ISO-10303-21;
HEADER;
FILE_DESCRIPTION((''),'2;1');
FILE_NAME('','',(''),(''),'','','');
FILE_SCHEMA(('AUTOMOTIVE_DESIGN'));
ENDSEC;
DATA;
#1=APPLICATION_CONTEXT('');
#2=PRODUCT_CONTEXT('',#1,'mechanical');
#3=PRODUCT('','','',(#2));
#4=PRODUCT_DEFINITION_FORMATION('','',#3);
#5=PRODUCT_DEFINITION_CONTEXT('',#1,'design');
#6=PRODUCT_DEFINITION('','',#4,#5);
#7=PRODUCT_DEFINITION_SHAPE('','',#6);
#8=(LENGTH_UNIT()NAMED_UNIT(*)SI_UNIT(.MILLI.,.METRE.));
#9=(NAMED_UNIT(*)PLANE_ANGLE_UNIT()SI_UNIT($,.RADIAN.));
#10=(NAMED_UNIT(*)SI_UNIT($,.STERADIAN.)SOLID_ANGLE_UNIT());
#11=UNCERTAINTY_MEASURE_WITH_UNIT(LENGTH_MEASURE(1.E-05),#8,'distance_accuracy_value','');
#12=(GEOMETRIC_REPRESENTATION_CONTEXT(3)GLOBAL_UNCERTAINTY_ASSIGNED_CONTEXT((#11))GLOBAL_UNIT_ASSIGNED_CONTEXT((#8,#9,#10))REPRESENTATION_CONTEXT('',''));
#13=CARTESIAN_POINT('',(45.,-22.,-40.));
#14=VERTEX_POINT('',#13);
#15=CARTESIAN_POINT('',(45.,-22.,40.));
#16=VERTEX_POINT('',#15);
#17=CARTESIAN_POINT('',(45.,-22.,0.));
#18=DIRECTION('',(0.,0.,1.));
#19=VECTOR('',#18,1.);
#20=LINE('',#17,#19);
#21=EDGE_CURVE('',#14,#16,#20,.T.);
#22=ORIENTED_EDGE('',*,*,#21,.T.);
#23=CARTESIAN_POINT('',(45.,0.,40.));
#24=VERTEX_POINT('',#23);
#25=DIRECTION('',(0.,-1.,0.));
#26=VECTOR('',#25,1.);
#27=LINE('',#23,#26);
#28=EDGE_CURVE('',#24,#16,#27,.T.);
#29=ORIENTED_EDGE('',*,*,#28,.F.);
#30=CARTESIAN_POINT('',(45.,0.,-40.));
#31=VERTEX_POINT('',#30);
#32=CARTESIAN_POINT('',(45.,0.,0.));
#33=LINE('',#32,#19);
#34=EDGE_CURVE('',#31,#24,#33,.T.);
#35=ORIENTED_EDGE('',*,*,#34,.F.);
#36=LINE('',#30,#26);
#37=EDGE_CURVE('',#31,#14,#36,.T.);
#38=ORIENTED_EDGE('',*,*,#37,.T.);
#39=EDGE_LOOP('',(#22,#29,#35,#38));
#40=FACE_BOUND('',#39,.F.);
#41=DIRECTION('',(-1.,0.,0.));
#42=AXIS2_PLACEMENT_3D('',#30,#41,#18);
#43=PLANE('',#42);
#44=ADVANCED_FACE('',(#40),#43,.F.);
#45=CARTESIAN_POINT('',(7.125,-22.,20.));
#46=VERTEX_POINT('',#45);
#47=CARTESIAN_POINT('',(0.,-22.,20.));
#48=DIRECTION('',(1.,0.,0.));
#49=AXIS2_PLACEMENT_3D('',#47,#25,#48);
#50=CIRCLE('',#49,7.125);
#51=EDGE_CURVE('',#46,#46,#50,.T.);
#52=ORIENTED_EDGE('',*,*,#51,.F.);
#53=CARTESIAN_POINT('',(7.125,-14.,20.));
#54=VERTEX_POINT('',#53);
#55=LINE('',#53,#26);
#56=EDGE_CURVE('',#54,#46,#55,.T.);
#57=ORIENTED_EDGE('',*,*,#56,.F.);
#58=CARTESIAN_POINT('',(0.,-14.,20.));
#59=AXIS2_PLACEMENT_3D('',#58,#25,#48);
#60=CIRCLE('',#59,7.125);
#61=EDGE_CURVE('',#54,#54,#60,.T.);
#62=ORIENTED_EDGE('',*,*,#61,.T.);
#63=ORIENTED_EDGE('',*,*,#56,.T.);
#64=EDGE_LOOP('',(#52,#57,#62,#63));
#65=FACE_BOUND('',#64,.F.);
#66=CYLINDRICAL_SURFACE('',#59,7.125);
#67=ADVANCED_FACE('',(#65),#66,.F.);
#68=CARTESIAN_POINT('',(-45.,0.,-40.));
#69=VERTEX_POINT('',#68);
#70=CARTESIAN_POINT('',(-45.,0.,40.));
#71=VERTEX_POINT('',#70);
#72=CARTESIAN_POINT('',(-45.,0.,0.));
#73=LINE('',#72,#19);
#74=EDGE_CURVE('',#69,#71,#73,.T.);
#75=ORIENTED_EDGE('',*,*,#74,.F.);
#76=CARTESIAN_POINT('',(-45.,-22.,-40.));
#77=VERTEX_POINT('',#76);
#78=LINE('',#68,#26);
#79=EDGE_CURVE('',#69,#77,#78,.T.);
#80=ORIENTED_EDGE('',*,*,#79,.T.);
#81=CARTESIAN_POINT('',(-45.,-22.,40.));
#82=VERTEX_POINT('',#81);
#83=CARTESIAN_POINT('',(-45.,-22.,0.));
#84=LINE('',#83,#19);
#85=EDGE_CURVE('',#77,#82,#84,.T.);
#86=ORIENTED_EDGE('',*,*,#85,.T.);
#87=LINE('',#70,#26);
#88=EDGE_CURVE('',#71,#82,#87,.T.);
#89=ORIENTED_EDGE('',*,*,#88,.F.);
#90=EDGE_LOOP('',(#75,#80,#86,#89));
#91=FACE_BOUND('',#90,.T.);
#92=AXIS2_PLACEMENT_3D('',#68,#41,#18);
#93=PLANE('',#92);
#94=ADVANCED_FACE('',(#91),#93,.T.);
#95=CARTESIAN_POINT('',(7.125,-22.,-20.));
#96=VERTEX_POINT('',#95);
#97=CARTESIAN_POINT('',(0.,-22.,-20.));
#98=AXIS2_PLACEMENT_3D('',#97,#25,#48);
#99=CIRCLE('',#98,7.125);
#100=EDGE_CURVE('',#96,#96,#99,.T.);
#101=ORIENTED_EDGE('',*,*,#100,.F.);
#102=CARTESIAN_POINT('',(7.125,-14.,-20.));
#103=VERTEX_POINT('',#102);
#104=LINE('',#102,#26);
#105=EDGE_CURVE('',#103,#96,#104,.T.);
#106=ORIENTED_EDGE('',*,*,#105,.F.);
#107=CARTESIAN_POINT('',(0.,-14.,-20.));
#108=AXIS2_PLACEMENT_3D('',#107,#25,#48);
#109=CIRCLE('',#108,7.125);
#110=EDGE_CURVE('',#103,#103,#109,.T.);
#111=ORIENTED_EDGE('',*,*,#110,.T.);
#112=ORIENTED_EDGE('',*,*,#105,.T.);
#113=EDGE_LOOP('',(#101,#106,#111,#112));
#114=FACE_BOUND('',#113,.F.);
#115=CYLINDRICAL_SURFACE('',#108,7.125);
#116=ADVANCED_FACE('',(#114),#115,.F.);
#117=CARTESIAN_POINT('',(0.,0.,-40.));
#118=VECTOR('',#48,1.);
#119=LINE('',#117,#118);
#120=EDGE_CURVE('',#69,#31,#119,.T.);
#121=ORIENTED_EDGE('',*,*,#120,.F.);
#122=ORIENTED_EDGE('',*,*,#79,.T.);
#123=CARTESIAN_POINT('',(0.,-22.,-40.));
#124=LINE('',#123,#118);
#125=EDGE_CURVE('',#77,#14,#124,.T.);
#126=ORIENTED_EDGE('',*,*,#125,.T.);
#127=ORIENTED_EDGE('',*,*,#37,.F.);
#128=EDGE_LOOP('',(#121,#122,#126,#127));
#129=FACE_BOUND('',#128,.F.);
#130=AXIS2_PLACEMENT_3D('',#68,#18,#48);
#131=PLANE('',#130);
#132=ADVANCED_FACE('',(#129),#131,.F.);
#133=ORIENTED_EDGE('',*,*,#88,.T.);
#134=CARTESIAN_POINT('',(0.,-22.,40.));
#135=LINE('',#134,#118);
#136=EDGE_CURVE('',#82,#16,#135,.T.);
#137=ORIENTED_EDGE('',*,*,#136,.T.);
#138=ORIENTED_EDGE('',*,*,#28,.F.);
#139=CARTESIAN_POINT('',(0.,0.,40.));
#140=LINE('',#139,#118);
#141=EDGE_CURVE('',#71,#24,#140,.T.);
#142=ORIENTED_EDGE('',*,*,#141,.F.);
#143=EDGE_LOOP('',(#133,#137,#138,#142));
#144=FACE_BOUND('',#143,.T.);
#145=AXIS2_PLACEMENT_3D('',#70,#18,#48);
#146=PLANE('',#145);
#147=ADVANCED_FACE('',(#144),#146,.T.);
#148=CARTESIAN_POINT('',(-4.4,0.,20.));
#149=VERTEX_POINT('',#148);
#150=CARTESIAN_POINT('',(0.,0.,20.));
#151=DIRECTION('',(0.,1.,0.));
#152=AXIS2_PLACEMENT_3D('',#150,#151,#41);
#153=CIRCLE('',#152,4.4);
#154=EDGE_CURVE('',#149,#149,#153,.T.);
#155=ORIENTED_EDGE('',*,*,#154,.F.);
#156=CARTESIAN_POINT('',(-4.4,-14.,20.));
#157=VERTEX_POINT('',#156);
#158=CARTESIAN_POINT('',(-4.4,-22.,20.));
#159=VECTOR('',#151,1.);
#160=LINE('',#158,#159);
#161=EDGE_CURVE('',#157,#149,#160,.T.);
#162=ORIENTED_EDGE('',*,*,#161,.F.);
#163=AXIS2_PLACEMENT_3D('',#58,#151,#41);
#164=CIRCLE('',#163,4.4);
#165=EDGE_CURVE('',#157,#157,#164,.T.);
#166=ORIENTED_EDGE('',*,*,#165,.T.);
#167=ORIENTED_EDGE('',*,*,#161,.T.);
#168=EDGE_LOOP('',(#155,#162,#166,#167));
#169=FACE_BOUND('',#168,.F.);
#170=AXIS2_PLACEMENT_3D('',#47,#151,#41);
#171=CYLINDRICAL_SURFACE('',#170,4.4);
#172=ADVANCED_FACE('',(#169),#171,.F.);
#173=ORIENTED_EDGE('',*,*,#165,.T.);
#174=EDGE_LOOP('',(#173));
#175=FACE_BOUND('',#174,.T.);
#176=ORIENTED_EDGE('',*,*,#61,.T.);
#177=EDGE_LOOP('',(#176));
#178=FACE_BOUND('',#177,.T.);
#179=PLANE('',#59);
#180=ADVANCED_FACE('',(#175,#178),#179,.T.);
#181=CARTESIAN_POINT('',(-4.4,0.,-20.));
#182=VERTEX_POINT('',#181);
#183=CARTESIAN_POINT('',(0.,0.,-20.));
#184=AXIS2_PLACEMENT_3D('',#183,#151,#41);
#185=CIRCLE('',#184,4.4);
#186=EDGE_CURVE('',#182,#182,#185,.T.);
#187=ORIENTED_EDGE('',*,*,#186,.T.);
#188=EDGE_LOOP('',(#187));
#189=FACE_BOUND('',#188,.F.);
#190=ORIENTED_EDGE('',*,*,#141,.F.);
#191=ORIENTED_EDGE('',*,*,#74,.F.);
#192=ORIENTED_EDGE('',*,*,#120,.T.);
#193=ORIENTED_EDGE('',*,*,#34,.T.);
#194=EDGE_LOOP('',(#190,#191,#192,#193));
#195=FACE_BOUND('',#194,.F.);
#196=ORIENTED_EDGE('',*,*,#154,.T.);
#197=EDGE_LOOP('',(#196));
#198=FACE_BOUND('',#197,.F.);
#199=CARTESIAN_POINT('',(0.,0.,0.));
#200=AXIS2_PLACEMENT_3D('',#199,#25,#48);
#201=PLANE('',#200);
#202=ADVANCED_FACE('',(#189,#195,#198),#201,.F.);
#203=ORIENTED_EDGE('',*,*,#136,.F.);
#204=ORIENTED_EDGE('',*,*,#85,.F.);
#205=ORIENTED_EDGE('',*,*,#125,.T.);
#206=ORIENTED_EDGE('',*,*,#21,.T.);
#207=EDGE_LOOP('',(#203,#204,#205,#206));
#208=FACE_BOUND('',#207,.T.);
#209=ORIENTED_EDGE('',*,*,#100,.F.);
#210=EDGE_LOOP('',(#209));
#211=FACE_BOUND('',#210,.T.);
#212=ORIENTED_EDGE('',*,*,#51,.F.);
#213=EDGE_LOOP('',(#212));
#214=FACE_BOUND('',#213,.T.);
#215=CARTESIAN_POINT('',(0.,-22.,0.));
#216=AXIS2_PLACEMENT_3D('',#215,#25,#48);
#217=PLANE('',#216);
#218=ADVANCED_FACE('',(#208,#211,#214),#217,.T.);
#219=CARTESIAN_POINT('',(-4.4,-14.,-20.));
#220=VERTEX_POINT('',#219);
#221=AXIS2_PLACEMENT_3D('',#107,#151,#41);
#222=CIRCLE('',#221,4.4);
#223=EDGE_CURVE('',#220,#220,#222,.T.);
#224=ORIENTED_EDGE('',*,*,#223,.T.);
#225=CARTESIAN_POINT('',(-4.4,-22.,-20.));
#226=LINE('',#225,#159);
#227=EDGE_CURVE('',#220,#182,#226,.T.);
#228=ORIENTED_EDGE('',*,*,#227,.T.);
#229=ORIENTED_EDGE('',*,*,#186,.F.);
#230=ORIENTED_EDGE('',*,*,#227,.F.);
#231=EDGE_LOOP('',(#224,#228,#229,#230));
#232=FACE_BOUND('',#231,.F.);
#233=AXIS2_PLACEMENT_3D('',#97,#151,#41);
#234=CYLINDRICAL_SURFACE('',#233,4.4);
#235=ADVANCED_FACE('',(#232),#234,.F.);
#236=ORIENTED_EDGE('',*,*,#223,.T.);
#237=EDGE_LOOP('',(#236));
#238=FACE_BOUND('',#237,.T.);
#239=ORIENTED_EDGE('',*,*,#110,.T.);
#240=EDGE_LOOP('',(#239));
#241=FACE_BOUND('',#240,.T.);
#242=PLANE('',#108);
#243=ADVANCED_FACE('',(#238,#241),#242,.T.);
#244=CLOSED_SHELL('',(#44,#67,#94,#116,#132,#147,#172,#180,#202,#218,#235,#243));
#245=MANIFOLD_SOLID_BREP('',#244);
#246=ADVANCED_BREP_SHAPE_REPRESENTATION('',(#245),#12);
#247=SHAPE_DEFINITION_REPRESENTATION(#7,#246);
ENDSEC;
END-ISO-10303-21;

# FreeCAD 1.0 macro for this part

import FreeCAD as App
import Part
import Sketcher
from FreeCAD import Vector

doc = App.newDocument("Part")
body = doc.addObject("PartDesign::Body", "Body")

sketch1 = body.newObject("Sketcher::SketchObject", "Sketch")
sketch1.AttachmentSupport = (doc.getObject("XZ_Plane"), [""])
sketch1.MapMode = "FlatFace"
sketch1.addGeometry([
    Part.LineSegment(Vector(-45, 40, 0), Vector(-45, -40, 0)),
    Part.LineSegment(Vector(-45, -40, 0), Vector(45, -40, 0)),
    Part.LineSegment(Vector(45, -40, 0), Vector(45, 40, 0)),
    Part.LineSegment(Vector(45, 40, 0), Vector(-45, 40, 0)),
], False)
sketch1.addConstraint([
    Sketcher.Constraint("Coincident", 0, 2, 1, 1),
    Sketcher.Constraint("Coincident", 1, 2, 2, 1),
    Sketcher.Constraint("Coincident", 2, 2, 3, 1),
    Sketcher.Constraint("Coincident", 3, 2, 0, 1),
    Sketcher.Constraint("Vertical", 0),
    Sketcher.Constraint("Horizontal", 1),
    Sketcher.Constraint("Vertical", 2),
    Sketcher.Constraint("Horizontal", 3),
    Sketcher.Constraint("Symmetric", 0, 2, 2, 2, -1, 1),
    Sketcher.Constraint("DistanceX", 1, 1, 1, 2, 90.0),
    Sketcher.Constraint("DistanceY", 0, 2, 0, 1, 80.0),
])
pad1 = body.newObject("PartDesign::Pad", "Pad")
pad1.Profile = sketch1
pad1.Length = 22

sketch2 = body.newObject("Sketcher::SketchObject", "Sketch001")
sketch2.AttachmentSupport = (doc.getObject("XZ_Plane"), [""])
sketch2.MapMode = "FlatFace"
sketch2.AttachmentOffset = App.Placement(Vector(0, 0, 22), App.Rotation())
sketch2.addGeometry([
    Part.Circle(Vector(0, 20, 0), Vector(0, 0, 1), 4.4),
    Part.Circle(Vector(0, -20, 0), Vector(0, 0, 1), 4.4),
], False)
sketch2.addConstraint([
    Sketcher.Constraint("Equal", 0, 1),
    Sketcher.Constraint("Symmetric", 0, 3, 1, 3, -1, 1),
    Sketcher.Constraint("PointOnObject", 0, 3, -2),
    Sketcher.Constraint("Diameter", 0, 8.8),
    Sketcher.Constraint("DistanceY", -1, 1, 0, 3, 20.0),
])
doc.recompute()
hole = body.newObject("PartDesign::Hole", "Hole")
hole.Profile = sketch2
hole.ThreadType = "None"
hole.Diameter = 8.8
hole.DepthType = "ThroughAll"
hole.HoleCutType = "Counterbore"
hole.HoleCutDiameter = 14.25
hole.HoleCutDepth = 8

doc.recompute()
